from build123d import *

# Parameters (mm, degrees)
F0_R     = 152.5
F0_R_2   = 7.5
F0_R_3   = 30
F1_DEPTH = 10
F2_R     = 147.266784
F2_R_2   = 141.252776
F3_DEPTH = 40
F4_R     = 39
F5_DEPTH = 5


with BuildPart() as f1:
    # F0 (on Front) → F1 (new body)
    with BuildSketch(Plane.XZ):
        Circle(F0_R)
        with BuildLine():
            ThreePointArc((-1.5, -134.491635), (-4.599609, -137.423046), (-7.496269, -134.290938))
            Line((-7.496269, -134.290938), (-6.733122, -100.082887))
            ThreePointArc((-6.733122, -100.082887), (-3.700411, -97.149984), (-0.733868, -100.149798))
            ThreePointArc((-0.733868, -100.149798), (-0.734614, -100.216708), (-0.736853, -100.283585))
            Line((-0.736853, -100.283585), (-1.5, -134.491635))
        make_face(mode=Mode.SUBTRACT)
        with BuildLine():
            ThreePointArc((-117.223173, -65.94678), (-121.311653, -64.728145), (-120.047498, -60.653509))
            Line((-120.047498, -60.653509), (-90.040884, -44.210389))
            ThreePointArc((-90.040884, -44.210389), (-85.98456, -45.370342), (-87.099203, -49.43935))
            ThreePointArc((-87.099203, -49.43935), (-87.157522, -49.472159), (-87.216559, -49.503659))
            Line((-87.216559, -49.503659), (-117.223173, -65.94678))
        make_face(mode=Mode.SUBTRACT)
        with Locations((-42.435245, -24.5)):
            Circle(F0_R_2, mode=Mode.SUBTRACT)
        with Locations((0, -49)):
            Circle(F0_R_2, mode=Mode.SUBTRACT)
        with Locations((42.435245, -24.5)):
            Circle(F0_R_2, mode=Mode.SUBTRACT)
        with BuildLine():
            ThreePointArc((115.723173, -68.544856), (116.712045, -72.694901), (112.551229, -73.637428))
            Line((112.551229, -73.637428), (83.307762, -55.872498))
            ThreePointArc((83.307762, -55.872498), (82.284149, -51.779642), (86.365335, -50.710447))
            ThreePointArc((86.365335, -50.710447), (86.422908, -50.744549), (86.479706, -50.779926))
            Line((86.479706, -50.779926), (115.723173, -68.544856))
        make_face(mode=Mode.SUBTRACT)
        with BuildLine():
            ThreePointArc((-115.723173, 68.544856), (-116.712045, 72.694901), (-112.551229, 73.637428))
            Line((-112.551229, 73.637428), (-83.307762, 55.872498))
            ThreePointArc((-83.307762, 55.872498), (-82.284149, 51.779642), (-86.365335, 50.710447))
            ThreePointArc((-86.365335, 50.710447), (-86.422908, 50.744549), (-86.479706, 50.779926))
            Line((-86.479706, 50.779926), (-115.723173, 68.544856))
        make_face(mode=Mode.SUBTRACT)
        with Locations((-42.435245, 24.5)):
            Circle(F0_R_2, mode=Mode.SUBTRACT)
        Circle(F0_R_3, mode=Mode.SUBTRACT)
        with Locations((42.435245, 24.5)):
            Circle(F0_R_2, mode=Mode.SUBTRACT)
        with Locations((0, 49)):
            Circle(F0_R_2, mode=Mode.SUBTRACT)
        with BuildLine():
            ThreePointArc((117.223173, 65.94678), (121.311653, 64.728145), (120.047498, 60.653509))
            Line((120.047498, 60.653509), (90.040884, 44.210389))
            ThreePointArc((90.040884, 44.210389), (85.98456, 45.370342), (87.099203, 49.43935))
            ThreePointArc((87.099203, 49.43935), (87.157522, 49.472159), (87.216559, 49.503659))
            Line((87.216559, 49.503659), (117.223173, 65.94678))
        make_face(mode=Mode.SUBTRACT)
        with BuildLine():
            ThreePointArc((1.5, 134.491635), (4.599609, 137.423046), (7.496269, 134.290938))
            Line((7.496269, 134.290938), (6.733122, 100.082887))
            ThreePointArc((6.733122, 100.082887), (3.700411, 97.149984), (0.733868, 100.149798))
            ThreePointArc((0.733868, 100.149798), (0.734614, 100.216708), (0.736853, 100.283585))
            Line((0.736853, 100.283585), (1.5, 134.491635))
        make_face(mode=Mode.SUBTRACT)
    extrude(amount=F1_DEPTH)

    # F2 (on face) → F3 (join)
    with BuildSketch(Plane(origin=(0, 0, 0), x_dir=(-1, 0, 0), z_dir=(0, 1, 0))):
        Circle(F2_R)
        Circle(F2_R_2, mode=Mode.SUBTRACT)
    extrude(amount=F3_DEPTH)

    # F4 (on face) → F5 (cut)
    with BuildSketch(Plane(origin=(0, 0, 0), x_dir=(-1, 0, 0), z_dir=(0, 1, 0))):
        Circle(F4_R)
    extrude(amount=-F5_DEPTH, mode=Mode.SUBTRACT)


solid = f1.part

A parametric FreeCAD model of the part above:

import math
import FreeCAD as App
import Part
import Sketcher

V = App.Vector

doc = App.newDocument("Part")
body = doc.addObject("PartDesign::Body", "Body")

sketch1 = body.newObject("Sketcher::SketchObject", "Sketch")
sketch1.AttachmentSupport = (doc.getObject("XZ_Plane"), [""])
sketch1.MapMode = "FlatFace"
sketch1.addGeometry([
    Part.Circle(V(0, 0, 0), V(0, 0, 1), 152.5),
    Part.LineSegment(V(-0.736853, -100.283585, 0), V(-1.5, -134.491635, 0)),
    Part.ArcOfCircle(Part.Circle(V(-4.499254, -134.424725, 0), V(0, 0, 1), 3), math.radians(177.444008), math.radians(358.722008)),
    Part.LineSegment(V(-7.496269, -134.290938, 0), V(-6.733122, -100.082887, 0)),
    Part.ArcOfCircle(Part.Circle(V(-3.733868, -100.149798, 0), V(0, 0, 1), 3), math.radians(-0.000008), math.radians(178.721996)),
    Part.ArcOfCircle(Part.Circle(V(-3.732148, -100.149828, 0), V(0, 0, 1), 2.99828), math.radians(-2.556876), math.radians(0.000581)),
    Part.LineSegment(V(-87.216559, -49.503659, 0), V(-117.223173, -65.94678, 0)),
    Part.ArcOfCircle(Part.Circle(V(-118.664853, -63.315894, 0), V(0, 0, 1), 3), math.radians(117.444008), math.radians(298.721983)),
    Part.LineSegment(V(-120.047498, -60.653509, 0), V(-90.040884, -44.210389, 0)),
    Part.ArcOfCircle(Part.Circle(V(-88.599203, -46.841274, 0), V(0, 0, 1), 3), math.radians(-59.999996), math.radians(118.722003)),
    Part.ArcOfCircle(Part.Circle(V(-88.598757, -46.842083, 0), V(0, 0, 1), 2.999077), math.radians(-62.556439), math.radians(-59.999646)),
    Part.Circle(V(-42.435245, -24.5, 0), V(0, 0, 1), 7.5),
    Part.Circle(V(0, -49, 0), V(0, 0, 1), 7.5),
    Part.Circle(V(0, 0, 0), V(0, 0, 1), 30),
    Part.Circle(V(42.435245, -24.5, 0), V(0, 0, 1), 7.5),
    Part.LineSegment(V(86.479706, -50.779926, 0), V(115.723173, -68.544856, 0)),
    Part.ArcOfCircle(Part.Circle(V(114.1656, -71.108831, 0), V(0, 0, 1), 3), math.radians(-122.556011), math.radians(58.722006)),
    Part.LineSegment(V(112.551229, -73.637428, 0), V(83.307762, -55.872498, 0)),
    Part.ArcOfCircle(Part.Circle(V(84.865335, -53.308523, 0), V(0, 0, 1), 3), math.radians(60.000004), math.radians(238.721996)),
    Part.ArcOfCircle(Part.Circle(V(84.864845, -53.309312, 0), V(0, 0, 1), 3.000928), math.radians(57.444218), math.radians(59.999432)),
    Part.LineSegment(V(-86.479706, 50.779926, 0), V(-115.723173, 68.544856, 0)),
    Part.ArcOfCircle(Part.Circle(V(-114.1656, 71.108831, 0), V(0, 0, 1), 3), math.radians(57.443989), math.radians(238.722006)),
    Part.LineSegment(V(-112.551229, 73.637428, 0), V(-83.307762, 55.872498, 0)),
    Part.ArcOfCircle(Part.Circle(V(-84.865335, 53.308523, 0), V(0, 0, 1), 3), math.radians(-119.999996), math.radians(58.721996)),
    Part.ArcOfCircle(Part.Circle(V(-84.864845, 53.309312, 0), V(0, 0, 1), 3.000928), math.radians(-122.555782), math.radians(-120.000568)),
    Part.Circle(V(-42.435245, 24.5, 0), V(0, 0, 1), 7.5),
    Part.Circle(V(42.435245, 24.5, 0), V(0, 0, 1), 7.5),
    Part.Circle(V(0, 49, 0), V(0, 0, 1), 7.5),
    Part.LineSegment(V(87.216559, 49.503659, 0), V(117.223173, 65.94678, 0)),
    Part.ArcOfCircle(Part.Circle(V(118.664853, 63.315894, 0), V(0, 0, 1), 3), math.radians(-62.555992), math.radians(118.721983)),
    Part.LineSegment(V(120.047498, 60.653509, 0), V(90.040884, 44.210389, 0)),
    Part.ArcOfCircle(Part.Circle(V(88.599203, 46.841274, 0), V(0, 0, 1), 3), math.radians(120.000004), math.radians(298.722003)),
    Part.ArcOfCircle(Part.Circle(V(88.598757, 46.842083, 0), V(0, 0, 1), 2.999077), math.radians(117.443561), math.radians(120.000354)),
    Part.LineSegment(V(0.736853, 100.283585, 0), V(1.5, 134.491635, 0)),
    Part.ArcOfCircle(Part.Circle(V(4.499254, 134.424725, 0), V(0, 0, 1), 3), math.radians(-2.555992), math.radians(178.722008)),
    Part.LineSegment(V(7.496269, 134.290938, 0), V(6.733122, 100.082887, 0)),
    Part.ArcOfCircle(Part.Circle(V(3.733868, 100.149798, 0), V(0, 0, 1), 3), math.radians(179.999992), math.radians(358.721996)),
    Part.ArcOfCircle(Part.Circle(V(3.732148, 100.149828, 0), V(0, 0, 1), 2.99828), math.radians(177.443124), math.radians(180.000581)),
], False)
sketch1.addConstraint([
    Sketcher.Constraint("Tangent", 1, 2, 2, 2),
    Sketcher.Constraint("Coincident", 2, 1, 3, 1),
    Sketcher.Constraint("Tangent", 3, 2, 4, 2),
    Sketcher.Constraint("Coincident", 4, 1, 5, 2),
    Sketcher.Constraint("Coincident", 5, 1, 1, 1),
    Sketcher.Constraint("Tangent", 6, 2, 7, 2),
    Sketcher.Constraint("Coincident", 7, 1, 8, 1),
    Sketcher.Constraint("Tangent", 8, 2, 9, 2),
    Sketcher.Constraint("Coincident", 9, 1, 10, 2),
    Sketcher.Constraint("Coincident", 10, 1, 6, 1),
    Sketcher.Constraint("Tangent", 15, 2, 16, 2),
    Sketcher.Constraint("Coincident", 16, 1, 17, 1),
    Sketcher.Constraint("Tangent", 17, 2, 18, 2),
    Sketcher.Constraint("Coincident", 18, 1, 19, 2),
    Sketcher.Constraint("Coincident", 19, 1, 15, 1),
    Sketcher.Constraint("Tangent", 20, 2, 21, 2),
    Sketcher.Constraint("Coincident", 21, 1, 22, 1),
    Sketcher.Constraint("Tangent", 22, 2, 23, 2),
    Sketcher.Constraint("Coincident", 23, 1, 24, 2),
    Sketcher.Constraint("Coincident", 24, 1, 20, 1),
    Sketcher.Constraint("Tangent", 28, 2, 29, 2),
    Sketcher.Constraint("Coincident", 29, 1, 30, 1),
    Sketcher.Constraint("Tangent", 30, 2, 31, 2),
    Sketcher.Constraint("Coincident", 31, 1, 32, 2),
    Sketcher.Constraint("Coincident", 32, 1, 28, 1),
    Sketcher.Constraint("Tangent", 33, 2, 34, 2),
    Sketcher.Constraint("Coincident", 34, 1, 35, 1),
    Sketcher.Constraint("Tangent", 35, 2, 36, 2),
    Sketcher.Constraint("Coincident", 36, 1, 37, 2),
    Sketcher.Constraint("Coincident", 37, 1, 33, 1),
    Sketcher.Constraint("Coincident", 0, 3, -1, 1),
    Sketcher.Constraint("Coincident", 13, 3, -1, 1),
    Sketcher.Constraint("Equal", 2, 4),
    Sketcher.Constraint("Equal", 4, 7),
    Sketcher.Constraint("Equal", 7, 9),
    Sketcher.Constraint("Equal", 11, 12),
    Sketcher.Constraint("Equal", 12, 14),
    Sketcher.Constraint("Equal", 9, 16),
    Sketcher.Constraint("Equal", 16, 18),
    Sketcher.Constraint("Equal", 18, 21),
    Sketcher.Constraint("Equal", 21, 23),
    Sketcher.Constraint("Equal", 19, 24),
    Sketcher.Constraint("Equal", 14, 25),
    Sketcher.Constraint("Equal", 25, 26),
    Sketcher.Constraint("Equal", 26, 27),
    Sketcher.Constraint("Equal", 23, 29),
    Sketcher.Constraint("Equal", 29, 31),
    Sketcher.Constraint("Equal", 10, 32),
    Sketcher.Constraint("Equal", 31, 34),
    Sketcher.Constraint("Equal", 34, 36),
    Sketcher.Constraint("Equal", 5, 37),
    Sketcher.Constraint("Symmetric", 16, 3, 21, 3, -1, 1),
    Sketcher.Constraint("Symmetric", 18, 3, 23, 3, -1, 1),
    Sketcher.Constraint("Symmetric", 14, 3, 25, 3, -1, 1),
    Sketcher.Constraint("Symmetric", 11, 3, 26, 3, -1, 1),
    Sketcher.Constraint("Symmetric", 12, 3, 27, 3, -1, 1),
    Sketcher.Constraint("Symmetric", 7, 3, 29, 3, -1, 1),
    Sketcher.Constraint("Symmetric", 9, 3, 31, 3, -1, 1),
    Sketcher.Constraint("Symmetric", 2, 3, 34, 3, -1, 1),
    Sketcher.Constraint("Symmetric", 4, 3, 36, 3, -1, 1),
    Sketcher.Constraint("Symmetric", 19, 1, 24, 1, -1, 1),
    Sketcher.Constraint("Symmetric", 10, 1, 32, 1, -1, 1),
    Sketcher.Constraint("Symmetric", 5, 1, 37, 1, -1, 1),
    Sketcher.Constraint("Symmetric", 11, 3, 14, 3, -2),
    Sketcher.Constraint("PointOnObject", 12, 3, -2),
    Sketcher.Constraint("Parallel", 1, 3),
    Sketcher.Constraint("Parallel", 6, 8),
    Sketcher.Constraint("Parallel", 15, 17),
    Sketcher.Constraint("Parallel", 20, 22),
    Sketcher.Constraint("Parallel", 28, 30),
    Sketcher.Constraint("Parallel", 33, 35),
    Sketcher.Constraint("Equal", 1, 3),
    Sketcher.Constraint("Equal", 3, 6),
    Sketcher.Constraint("Equal", 6, 8),
    Sketcher.Constraint("Equal", 8, 15),
    Sketcher.Constraint("Equal", 15, 17),
    Sketcher.Constraint("Diameter", 0, 305.0),
    Sketcher.Constraint("Diameter", 11, 15.0),
    Sketcher.Constraint("Diameter", 13, 60.0),
    Sketcher.Constraint("Radius", 2, 3.0),
    Sketcher.Constraint("DistanceY", 12, 3, -1, 1, 49.0),
    Sketcher.Constraint("DistanceY", 11, 3, 25, 3, 49.0),
    Sketcher.Constraint("DistanceX", 1, 2, -1, 1, 1.5),
    Sketcher.Constraint("DistanceX", 9, 3, 9, 1, 1.5),
    Sketcher.Constraint("DistanceX", 18, 3, 18, 1, 1.5),
    Sketcher.Constraint("DistanceX", 23, 1, 23, 3, 1.5),
    Sketcher.Constraint("DistanceX", 31, 1, 31, 3, 1.5),
    Sketcher.Constraint("Radius", 5, 2.99828),
    Sketcher.Constraint("Radius", 10, 2.999077),
    Sketcher.Constraint("Radius", 19, 3.000928),
    Sketcher.Constraint("DistanceX", -1, 1, 16, 3, 114.1656),
    Sketcher.Constraint("DistanceY", 4, 1, -1, 1, 100.149798),
    Sketcher.Constraint("DistanceY", -1, 1, 36, 1, 100.149798),
    Sketcher.Constraint("DistanceX", 7, 3, 2, 3, 114.165599),
    Sketcher.Constraint("DistanceX", 14, 3, 19, 3, 42.4296),
    Sketcher.Constraint("DistanceX", 25, 3, 34, 3, 46.934499),
    Sketcher.Constraint("DistanceY", 23, 3, 34, 3, 81.116202),
    Sketcher.Constraint("DistanceX", 2, 1, 4, 3, 3.762401),
    Sketcher.Constraint("DistanceX", 10, 3, 10, 1, 1.382198),
    Sketcher.Constraint("Distance", 1, 34.216561),
    Sketcher.Constraint("DistanceX", 4, 3, -1, 1, 3.733868),
    Sketcher.Constraint("DistanceY", 5, 3, -1, 1, 100.149828),
    Sketcher.Constraint("DistanceY", 16, 3, -1, 1, 71.108831),
    Sketcher.Constraint("DistanceY", 6, 2, -1, 1, 65.94678),
    Sketcher.Constraint("DistanceY", 7, 1, -1, 1, 60.653509),
])
pad1 = body.newObject("PartDesign::Pad", "Pad")
pad1.Profile = sketch1
pad1.Length = 10

sketch2 = body.newObject("Sketcher::SketchObject", "Sketch001")
sketch2.AttachmentSupport = (doc.getObject("XZ_Plane"), [""])
sketch2.MapMode = "FlatFace"
sketch2.addGeometry([
    Part.Circle(V(0, 0, 0), V(0, 0, 1), 147.266784),
    Part.Circle(V(0, 0, 0), V(0, 0, 1), 141.252776),
], False)
sketch2.addConstraint([
    Sketcher.Constraint("Coincident", 0, 3, -1, 1),
    Sketcher.Constraint("Coincident", 1, 3, -1, 1),
    Sketcher.Constraint("Diameter", 0, 294.533568),
    Sketcher.Constraint("Diameter", 1, 282.505552),
])
pad2 = body.newObject("PartDesign::Pad", "Pad001")
pad2.Profile = sketch2
pad2.Length = 40
pad2.Reversed = True

sketch3 = body.newObject("Sketcher::SketchObject", "Sketch002")
sketch3.AttachmentSupport = (doc.getObject("XZ_Plane"), [""])
sketch3.MapMode = "FlatFace"
sketch3.addGeometry(Part.Circle(V(0, 0, 0), V(0, 0, 1), 39), False)
sketch3.addConstraint([
    Sketcher.Constraint("Coincident", 0, 3, -1, 1),
    Sketcher.Constraint("Diameter", 0, 78.0),
])
pocket1 = body.newObject("PartDesign::Pocket", "Pocket")
pocket1.Profile = sketch3
pocket1.Length = 5
pocket1.Reversed = True

doc.recompute()
